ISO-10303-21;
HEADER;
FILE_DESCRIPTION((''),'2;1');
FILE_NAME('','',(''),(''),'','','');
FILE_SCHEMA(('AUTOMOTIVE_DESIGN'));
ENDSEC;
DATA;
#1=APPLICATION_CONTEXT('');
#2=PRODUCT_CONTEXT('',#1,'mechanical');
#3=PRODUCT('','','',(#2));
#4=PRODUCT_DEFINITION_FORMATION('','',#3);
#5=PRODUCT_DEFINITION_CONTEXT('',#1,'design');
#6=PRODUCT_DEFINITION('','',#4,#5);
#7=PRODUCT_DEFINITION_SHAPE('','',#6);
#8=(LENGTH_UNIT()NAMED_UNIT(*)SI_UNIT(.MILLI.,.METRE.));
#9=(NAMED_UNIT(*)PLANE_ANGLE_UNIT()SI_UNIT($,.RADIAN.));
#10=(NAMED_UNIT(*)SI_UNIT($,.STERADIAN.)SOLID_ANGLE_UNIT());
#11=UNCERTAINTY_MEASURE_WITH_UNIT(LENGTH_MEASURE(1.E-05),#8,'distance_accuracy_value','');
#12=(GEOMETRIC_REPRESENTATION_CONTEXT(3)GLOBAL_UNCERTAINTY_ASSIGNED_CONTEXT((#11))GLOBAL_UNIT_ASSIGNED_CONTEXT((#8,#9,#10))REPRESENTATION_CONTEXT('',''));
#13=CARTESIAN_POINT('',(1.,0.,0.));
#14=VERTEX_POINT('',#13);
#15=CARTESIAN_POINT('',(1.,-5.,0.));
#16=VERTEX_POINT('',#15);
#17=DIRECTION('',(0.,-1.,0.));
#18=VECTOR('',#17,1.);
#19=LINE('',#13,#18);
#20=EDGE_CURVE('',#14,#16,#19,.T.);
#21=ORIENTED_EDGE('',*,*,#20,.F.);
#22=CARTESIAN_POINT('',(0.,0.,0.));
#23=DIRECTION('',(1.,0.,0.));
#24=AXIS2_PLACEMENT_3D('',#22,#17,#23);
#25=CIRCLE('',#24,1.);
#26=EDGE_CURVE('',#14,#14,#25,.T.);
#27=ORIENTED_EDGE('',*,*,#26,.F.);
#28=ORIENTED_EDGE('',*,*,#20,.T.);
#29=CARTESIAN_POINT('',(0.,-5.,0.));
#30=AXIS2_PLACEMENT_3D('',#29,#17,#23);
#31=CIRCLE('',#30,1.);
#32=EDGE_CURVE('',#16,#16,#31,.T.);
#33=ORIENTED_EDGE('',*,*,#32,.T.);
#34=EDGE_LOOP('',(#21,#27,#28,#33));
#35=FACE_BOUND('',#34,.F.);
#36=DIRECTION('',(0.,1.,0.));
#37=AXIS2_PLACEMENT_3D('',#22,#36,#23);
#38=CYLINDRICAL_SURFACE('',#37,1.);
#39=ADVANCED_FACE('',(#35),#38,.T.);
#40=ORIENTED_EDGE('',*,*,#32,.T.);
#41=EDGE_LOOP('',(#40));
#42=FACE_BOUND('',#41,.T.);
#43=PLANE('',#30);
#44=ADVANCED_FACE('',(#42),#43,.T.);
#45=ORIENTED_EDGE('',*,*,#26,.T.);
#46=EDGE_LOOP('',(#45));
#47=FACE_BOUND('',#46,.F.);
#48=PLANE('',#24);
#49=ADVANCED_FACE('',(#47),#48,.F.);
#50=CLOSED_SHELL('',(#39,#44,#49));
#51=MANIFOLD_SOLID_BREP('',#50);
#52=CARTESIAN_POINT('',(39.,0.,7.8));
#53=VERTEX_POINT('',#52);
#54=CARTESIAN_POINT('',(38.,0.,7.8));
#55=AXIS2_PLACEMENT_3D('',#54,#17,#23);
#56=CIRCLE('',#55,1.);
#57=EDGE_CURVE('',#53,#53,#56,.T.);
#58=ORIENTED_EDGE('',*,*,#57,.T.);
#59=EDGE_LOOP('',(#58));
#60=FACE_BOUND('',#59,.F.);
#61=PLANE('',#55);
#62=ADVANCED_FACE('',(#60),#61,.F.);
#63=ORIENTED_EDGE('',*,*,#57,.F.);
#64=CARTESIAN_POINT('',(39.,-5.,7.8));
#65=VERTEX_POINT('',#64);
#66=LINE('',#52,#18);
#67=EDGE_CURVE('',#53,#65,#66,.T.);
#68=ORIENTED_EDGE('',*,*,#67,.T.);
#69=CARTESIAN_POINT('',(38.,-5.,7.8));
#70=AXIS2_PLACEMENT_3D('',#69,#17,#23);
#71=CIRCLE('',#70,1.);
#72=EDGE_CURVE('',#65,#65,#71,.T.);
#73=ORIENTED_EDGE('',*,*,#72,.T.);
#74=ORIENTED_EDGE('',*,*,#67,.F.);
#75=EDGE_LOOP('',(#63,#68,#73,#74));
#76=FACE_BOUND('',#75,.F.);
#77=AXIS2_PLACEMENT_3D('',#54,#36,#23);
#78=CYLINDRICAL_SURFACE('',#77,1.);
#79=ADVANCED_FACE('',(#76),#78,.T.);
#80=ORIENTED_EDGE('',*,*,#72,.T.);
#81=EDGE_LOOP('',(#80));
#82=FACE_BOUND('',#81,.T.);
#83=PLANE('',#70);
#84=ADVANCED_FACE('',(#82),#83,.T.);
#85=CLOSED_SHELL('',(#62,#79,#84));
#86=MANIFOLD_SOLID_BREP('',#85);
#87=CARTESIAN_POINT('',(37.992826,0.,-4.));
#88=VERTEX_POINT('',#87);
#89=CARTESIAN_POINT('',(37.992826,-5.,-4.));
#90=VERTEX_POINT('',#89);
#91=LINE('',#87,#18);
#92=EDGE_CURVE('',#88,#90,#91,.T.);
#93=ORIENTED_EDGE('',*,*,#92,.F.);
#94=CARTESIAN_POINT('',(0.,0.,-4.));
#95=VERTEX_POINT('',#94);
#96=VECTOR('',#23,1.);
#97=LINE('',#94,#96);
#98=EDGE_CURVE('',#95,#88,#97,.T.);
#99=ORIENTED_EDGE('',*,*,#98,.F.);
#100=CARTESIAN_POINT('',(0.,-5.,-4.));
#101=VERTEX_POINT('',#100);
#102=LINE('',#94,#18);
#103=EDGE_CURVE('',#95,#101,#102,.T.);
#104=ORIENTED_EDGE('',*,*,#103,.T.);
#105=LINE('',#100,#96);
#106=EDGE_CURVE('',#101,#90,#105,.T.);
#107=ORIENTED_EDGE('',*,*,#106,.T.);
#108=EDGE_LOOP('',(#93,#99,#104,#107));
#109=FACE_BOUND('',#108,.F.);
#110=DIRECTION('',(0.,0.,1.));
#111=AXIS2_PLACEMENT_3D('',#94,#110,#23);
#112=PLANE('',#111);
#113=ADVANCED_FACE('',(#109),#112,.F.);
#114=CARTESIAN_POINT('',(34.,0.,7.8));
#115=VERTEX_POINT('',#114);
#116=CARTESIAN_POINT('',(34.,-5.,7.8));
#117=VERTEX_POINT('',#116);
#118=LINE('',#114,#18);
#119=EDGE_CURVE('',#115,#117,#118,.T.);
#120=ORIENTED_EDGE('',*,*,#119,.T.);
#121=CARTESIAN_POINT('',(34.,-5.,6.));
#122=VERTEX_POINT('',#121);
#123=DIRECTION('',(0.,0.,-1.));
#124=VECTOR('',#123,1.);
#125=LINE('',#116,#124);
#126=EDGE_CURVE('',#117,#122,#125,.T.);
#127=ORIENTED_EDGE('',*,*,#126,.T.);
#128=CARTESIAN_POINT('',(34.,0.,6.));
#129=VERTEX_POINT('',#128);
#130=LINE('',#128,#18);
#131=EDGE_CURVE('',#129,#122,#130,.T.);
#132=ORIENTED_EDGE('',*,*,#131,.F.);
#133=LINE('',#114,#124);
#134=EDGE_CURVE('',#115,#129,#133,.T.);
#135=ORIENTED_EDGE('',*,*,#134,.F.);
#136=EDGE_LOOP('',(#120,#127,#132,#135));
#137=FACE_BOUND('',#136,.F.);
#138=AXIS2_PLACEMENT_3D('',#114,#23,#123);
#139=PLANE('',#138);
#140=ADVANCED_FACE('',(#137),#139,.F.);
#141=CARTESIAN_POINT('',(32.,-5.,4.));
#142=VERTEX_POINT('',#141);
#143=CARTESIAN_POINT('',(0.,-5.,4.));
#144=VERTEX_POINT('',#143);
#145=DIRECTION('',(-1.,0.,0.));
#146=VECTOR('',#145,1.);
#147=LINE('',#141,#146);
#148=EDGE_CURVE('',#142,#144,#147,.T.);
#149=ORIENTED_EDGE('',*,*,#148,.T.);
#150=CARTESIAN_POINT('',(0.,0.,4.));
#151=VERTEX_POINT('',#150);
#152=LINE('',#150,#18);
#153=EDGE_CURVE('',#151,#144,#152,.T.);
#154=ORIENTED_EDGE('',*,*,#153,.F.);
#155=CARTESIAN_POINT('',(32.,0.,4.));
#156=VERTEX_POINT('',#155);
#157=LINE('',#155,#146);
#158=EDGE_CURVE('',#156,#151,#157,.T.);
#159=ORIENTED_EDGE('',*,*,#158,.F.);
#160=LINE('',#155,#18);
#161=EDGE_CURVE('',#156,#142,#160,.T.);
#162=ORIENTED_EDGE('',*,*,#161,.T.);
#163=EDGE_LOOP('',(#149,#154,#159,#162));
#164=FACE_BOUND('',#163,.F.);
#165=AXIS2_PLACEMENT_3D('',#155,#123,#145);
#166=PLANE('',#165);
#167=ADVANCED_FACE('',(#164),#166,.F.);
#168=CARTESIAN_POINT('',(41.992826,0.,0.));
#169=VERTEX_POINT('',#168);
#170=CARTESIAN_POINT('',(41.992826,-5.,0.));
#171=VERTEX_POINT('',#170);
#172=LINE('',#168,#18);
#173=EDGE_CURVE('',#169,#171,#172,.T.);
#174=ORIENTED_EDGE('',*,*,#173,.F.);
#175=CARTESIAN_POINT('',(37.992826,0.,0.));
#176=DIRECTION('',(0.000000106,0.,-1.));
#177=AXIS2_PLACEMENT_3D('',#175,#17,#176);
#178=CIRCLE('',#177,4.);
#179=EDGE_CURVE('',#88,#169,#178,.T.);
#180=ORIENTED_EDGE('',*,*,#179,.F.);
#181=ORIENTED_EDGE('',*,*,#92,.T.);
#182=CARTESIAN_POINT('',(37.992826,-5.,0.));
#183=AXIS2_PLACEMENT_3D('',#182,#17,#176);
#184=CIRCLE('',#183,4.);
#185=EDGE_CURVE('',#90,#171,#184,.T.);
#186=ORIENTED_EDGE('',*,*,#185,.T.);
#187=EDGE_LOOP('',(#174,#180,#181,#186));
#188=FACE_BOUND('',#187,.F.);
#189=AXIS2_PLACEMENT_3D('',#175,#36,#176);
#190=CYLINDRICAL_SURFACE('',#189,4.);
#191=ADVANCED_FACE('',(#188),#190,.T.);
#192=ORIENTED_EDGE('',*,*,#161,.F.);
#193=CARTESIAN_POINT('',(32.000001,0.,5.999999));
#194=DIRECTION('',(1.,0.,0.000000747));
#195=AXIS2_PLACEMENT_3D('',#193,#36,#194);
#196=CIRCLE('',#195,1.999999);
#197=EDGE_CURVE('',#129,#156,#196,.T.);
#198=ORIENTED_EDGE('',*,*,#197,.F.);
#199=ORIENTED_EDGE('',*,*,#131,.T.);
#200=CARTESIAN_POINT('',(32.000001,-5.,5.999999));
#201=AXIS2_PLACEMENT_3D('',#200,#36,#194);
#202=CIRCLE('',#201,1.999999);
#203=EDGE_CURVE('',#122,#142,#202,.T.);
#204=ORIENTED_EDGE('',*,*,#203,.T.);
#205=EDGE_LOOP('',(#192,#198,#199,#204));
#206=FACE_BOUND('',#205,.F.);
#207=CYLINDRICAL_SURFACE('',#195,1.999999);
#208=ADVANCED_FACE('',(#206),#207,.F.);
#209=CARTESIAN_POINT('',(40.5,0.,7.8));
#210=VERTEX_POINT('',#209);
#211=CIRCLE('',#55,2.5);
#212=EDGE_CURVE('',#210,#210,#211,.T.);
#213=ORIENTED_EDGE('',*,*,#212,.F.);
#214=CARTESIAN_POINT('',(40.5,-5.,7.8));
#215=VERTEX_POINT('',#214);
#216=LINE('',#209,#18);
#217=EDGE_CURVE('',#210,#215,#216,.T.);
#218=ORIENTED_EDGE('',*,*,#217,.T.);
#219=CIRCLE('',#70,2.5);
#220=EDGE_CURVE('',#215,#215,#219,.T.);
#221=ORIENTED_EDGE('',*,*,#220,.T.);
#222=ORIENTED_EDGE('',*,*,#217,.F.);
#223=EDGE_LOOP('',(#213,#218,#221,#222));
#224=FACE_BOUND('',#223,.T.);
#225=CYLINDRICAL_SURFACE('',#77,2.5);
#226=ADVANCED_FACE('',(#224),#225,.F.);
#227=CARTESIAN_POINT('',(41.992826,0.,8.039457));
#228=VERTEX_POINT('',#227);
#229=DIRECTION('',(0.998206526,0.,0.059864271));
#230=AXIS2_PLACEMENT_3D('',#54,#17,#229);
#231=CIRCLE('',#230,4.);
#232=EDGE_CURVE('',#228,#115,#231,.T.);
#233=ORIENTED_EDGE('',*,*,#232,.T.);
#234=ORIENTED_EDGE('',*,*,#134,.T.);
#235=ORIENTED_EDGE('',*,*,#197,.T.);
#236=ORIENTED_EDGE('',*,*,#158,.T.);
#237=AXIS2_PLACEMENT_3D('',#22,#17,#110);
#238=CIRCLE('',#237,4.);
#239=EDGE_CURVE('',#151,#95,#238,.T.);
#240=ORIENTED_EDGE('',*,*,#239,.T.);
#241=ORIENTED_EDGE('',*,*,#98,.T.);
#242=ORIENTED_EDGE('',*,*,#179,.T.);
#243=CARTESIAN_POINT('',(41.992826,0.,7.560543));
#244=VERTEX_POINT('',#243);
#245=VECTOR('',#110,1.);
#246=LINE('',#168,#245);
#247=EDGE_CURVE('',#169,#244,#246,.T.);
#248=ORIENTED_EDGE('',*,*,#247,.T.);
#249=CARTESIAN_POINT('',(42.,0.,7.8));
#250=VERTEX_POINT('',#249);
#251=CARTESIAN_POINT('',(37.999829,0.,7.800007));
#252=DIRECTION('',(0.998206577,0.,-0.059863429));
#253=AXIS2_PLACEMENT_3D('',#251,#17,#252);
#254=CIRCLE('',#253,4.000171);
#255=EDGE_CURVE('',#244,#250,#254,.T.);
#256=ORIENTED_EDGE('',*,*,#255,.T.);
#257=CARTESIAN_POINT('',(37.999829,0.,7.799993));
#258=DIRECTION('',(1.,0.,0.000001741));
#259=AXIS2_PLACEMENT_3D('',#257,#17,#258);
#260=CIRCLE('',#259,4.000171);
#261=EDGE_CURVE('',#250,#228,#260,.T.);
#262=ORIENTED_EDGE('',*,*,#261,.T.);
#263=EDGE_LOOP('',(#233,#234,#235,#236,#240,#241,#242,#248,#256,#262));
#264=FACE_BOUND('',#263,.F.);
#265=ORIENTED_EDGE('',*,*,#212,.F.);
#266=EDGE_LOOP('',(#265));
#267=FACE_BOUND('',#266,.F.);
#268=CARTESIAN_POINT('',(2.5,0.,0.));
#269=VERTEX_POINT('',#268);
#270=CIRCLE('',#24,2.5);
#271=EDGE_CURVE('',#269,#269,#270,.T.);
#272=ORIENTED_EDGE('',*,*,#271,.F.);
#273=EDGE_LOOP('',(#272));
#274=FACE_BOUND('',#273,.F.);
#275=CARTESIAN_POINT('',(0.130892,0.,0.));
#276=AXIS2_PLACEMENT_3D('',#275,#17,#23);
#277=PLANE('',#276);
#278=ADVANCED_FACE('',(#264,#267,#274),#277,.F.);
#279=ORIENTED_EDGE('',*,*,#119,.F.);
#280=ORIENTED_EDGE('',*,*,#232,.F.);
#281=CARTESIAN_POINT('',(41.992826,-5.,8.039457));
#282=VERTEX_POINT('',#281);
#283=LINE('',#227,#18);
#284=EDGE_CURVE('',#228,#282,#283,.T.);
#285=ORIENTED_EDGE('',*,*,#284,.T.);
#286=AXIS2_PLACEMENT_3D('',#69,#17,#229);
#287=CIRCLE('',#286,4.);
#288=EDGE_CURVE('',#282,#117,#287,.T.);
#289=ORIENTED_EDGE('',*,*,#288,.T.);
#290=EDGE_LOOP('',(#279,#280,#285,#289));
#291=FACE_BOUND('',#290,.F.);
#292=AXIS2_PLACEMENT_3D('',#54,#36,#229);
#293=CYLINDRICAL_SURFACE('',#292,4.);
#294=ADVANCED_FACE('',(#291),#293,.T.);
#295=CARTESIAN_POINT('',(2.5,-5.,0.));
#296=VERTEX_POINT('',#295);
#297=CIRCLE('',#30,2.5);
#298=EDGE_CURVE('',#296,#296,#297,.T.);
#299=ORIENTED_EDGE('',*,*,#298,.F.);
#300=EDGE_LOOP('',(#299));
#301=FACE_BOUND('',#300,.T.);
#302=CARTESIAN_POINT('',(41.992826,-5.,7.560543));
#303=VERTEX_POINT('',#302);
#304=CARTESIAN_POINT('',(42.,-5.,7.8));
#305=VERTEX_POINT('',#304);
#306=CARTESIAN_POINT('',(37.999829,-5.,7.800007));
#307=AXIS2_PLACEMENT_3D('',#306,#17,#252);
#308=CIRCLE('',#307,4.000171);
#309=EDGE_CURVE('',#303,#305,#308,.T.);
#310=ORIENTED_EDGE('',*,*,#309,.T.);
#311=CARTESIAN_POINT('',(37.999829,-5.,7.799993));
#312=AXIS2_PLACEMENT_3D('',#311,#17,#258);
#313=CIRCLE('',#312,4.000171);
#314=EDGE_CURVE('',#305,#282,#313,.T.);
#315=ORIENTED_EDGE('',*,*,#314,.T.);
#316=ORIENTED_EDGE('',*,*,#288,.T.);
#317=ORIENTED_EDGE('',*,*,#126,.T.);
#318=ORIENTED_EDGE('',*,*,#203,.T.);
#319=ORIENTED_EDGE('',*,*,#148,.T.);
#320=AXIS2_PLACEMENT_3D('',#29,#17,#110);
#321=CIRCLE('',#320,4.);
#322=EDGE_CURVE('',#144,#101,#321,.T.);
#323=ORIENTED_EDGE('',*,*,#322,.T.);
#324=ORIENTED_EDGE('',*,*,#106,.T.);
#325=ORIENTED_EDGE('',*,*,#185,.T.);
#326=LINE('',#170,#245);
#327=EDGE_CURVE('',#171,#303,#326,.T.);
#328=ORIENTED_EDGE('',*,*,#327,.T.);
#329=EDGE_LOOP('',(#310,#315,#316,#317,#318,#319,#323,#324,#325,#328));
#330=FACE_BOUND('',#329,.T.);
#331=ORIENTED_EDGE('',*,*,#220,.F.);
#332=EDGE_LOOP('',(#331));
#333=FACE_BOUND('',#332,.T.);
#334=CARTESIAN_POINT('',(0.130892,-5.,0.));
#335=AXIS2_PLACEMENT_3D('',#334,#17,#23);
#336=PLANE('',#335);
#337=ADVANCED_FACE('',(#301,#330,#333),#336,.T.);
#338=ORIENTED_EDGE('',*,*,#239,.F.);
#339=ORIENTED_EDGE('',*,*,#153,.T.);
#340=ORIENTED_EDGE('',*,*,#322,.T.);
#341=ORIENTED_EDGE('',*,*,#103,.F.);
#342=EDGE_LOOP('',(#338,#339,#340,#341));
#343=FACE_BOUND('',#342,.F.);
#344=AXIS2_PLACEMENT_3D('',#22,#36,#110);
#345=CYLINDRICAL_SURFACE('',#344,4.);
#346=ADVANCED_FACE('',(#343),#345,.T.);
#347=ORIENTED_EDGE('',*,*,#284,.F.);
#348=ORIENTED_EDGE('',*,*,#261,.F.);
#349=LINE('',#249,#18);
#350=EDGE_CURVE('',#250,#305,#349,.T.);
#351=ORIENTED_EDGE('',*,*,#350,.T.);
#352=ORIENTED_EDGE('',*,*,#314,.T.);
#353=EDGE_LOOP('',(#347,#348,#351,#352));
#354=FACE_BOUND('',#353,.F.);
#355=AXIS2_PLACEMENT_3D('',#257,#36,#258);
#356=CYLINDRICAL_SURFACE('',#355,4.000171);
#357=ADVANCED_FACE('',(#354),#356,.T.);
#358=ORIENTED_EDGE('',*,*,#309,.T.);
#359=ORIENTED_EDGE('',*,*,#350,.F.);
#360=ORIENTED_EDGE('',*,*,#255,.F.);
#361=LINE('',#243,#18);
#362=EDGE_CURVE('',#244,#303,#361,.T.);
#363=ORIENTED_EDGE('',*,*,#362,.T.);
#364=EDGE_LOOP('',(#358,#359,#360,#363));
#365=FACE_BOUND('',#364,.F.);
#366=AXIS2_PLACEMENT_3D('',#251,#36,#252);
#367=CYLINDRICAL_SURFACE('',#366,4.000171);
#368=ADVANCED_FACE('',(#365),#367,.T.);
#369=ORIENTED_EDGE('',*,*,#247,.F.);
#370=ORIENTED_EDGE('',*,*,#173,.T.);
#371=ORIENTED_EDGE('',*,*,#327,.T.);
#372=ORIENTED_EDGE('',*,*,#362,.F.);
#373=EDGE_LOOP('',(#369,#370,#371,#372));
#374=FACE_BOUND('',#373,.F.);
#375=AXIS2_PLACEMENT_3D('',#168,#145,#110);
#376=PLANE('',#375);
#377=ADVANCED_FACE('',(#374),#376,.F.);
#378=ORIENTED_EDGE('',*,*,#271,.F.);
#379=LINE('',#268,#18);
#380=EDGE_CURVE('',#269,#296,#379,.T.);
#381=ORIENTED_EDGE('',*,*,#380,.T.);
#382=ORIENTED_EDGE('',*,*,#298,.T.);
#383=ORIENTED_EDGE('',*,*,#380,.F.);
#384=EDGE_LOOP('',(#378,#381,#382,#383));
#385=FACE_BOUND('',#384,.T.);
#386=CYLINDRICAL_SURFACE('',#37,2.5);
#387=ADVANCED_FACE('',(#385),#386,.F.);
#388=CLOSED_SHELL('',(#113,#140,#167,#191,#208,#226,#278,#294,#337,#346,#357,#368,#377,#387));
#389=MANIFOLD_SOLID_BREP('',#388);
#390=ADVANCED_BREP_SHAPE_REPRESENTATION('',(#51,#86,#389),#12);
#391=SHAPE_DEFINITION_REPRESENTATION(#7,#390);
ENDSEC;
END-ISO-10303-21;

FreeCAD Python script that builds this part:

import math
import FreeCAD as App
import Part
import Sketcher
from FreeCAD import Vector

doc = App.newDocument("Part")
body = doc.addObject("PartDesign::Body", "Body")
body.AllowCompound = True

# Sketch on XZ plane
sketch1 = body.newObject("Sketcher::SketchObject", "Sketch")
sketch1.AttachmentSupport = (doc.getObject("XZ_Plane"), [""])
sketch1.MapMode = "FlatFace"
sketch1.addGeometry([
    Part.ArcOfCircle(Part.Circle(Vector(0, 0, 0), Vector(0, 0, 1), 4), math.radians(90), math.radians(270)),  # 0
    Part.LineSegment(Vector(0, -4, 0), Vector(37.99, -4, 0)),  # 1
    Part.ArcOfCircle(Part.Circle(Vector(37.99, 0, 0), Vector(0, 0, 1), 4), math.radians(-90), math.radians(0)),  # 2
    Part.LineSegment(Vector(41.99, 0, 0), Vector(41.99, 7.56, 0)),  # 3
    Part.ArcOfCircle(Part.Circle(Vector(38, 7.8, 0), Vector(0, 0, 1), 4), math.radians(-3.43), math.radians(0)),  # 4
    Part.ArcOfCircle(Part.Circle(Vector(38, 7.8, 0), Vector(0, 0, 1), 4), math.radians(0), math.radians(3.43)),  # 5
    Part.ArcOfCircle(Part.Circle(Vector(38, 7.8, 0), Vector(0, 0, 1), 4), math.radians(3), math.radians(180)),  # 6
    Part.LineSegment(Vector(34, 7.8, 0), Vector(34, 6, 0)),  # 7
    Part.ArcOfCircle(Part.Circle(Vector(32, 6, 0), Vector(0, 0, 1), 2), math.radians(-90), math.radians(0)),  # 8
    Part.LineSegment(Vector(32, 4, 0), Vector(0, 4, 0)),  # 9
    Part.Circle(Vector(0, 0, 0), Vector(0, 0, 1), 2.5),  # 10
    Part.Circle(Vector(38, 7.8, 0), Vector(0, 0, 1), 2.5),  # 11
    Part.Circle(Vector(0, 0, 0), Vector(0, 0, 1), 1),  # 12
    Part.Circle(Vector(38, 7.8, 0), Vector(0, 0, 1), 1),  # 13
], False)
sketch1.addConstraint([
    Sketcher.Constraint("Tangent", 0, 2, 1, 1),
    Sketcher.Constraint("Tangent", 1, 2, 2, 1),
    Sketcher.Constraint("Tangent", 2, 2, 3, 1),
    Sketcher.Constraint("Coincident", 3, 2, 4, 1),
    Sketcher.Constraint("Coincident", 4, 2, 5, 1),
    Sketcher.Constraint("Tangent", 5, 2, 6, 1),
    Sketcher.Constraint("Tangent", 6, 2, 7, 1),
    Sketcher.Constraint("Tangent", 7, 2, 8, 2),
    Sketcher.Constraint("Tangent", 8, 1, 9, 1),
    Sketcher.Constraint("Tangent", 9, 2, 0, 1),
    Sketcher.Constraint("Horizontal", 1),
    Sketcher.Constraint("Vertical", 3),
    Sketcher.Constraint("Vertical", 7),
    Sketcher.Constraint("Horizontal", 9),
    Sketcher.Constraint("Coincident", 0, 3, -1, 1),
    Sketcher.Constraint("Coincident", 10, 3, -1, 1),
    Sketcher.Constraint("Coincident", 12, 3, -1, 1),
    Sketcher.Constraint("Coincident", 11, 3, 6, 3),
    Sketcher.Constraint("Coincident", 13, 3, 6, 3),
    Sketcher.Constraint("Equal", 0, 2),
    Sketcher.Constraint("Equal", 4, 5),
    Sketcher.Constraint("Equal", 2, 6),
    Sketcher.Constraint("Equal", 10, 11),
    Sketcher.Constraint("Equal", 12, 13),
    Sketcher.Constraint("Horizontal", 13, 3, 4, 2),
    Sketcher.Constraint("Vertical", 3, 2, 5, 2),
    Sketcher.Constraint("Diameter", 10, 5.0),
    Sketcher.Constraint("Diameter", 12, 2.0),
    Sketcher.Constraint("Radius", 0, 4.0),
    Sketcher.Constraint("Radius", 8, 1.999999),
    Sketcher.Constraint("DistanceX", 9, 2, 9, 1, 32.0),
    Sketcher.Constraint("DistanceY", 7, 2, 7, 1, 1.8),
    Sketcher.Constraint("Radius", 4, 4.000171),
    Sketcher.Constraint("DistanceX", 1, 1, 1, 2, 37.992826),
    Sketcher.Constraint("DistanceY", 3, 1, 3, 2, 7.560543),
])
pad1 = body.newObject("PartDesign::Pad", "Pad")
pad1.Profile = sketch1
pad1.Length = 5

doc.recompute()
